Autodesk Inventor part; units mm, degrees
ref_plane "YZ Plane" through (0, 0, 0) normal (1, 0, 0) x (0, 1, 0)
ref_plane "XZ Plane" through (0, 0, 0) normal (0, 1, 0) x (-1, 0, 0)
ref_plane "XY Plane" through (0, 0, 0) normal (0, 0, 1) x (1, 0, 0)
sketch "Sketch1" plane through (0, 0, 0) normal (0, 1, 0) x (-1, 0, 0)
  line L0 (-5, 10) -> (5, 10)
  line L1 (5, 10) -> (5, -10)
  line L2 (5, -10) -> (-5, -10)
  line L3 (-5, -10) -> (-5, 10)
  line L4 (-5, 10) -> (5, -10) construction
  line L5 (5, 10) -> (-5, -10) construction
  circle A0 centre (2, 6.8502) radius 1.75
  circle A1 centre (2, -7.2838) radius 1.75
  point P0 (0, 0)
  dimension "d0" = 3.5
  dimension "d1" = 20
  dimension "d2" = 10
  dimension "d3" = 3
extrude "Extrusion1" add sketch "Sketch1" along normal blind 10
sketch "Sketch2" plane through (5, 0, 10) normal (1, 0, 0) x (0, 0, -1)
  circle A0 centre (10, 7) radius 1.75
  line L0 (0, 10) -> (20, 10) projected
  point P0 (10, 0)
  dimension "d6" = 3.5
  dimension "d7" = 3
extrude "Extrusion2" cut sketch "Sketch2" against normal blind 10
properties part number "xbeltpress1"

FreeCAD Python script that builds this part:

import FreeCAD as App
import Part
import Sketcher

doc = App.newDocument("Part")
params = doc.addObject("Spreadsheet::Sheet", "Params")
for row, (alias, value) in enumerate([
    ("sketch1_diameter", "3.5 mm"),
    ("sketch1_width", "10 mm"),
    ("sketch1_height", "20 mm"),
    ("pad1_length", "10 mm"),
    ("sketch2_diameter", "3.5 mm"),
    ("pocket1_length", "10 mm"),
], start=1):
    params.set(f"A{row}", alias)
    params.set(f"B{row}", "=" + value)
    params.setAlias(f"B{row}", alias)

body = doc.addObject("PartDesign::Body", "Body")

sketch1 = doc.addObject("Sketcher::SketchObject", "Sketch")
body.addObject(sketch1)
sketch1.AttachmentSupport = (doc.XZ_Plane, [""])
sketch1.MapMode = "FlatFace"
sketch1.addGeometry(Part.LineSegment(App.Vector(-5, 10, 0), App.Vector(5, 10, 0)), False)
sketch1.addGeometry(Part.LineSegment(App.Vector(5, 10, 0), App.Vector(5, -10, 0)), False)
sketch1.addGeometry(Part.LineSegment(App.Vector(5, -10, 0), App.Vector(-5, -10, 0)), False)
sketch1.addGeometry(Part.LineSegment(App.Vector(-5, -10, 0), App.Vector(-5, 10, 0)), False)
sketch1.addGeometry(Part.Circle(App.Vector(-2, -7.3, 0), App.Vector(0, 0, 1), 1.8), False)
sketch1.addGeometry(Part.Circle(App.Vector(-2, 6.9, 0), App.Vector(0, 0, 1), 1.8), False)
sketch1.addConstraint(Sketcher.Constraint("Coincident", 0, 2, 1, 1))
sketch1.addConstraint(Sketcher.Constraint("Coincident", 1, 2, 2, 1))
sketch1.addConstraint(Sketcher.Constraint("Coincident", 2, 2, 3, 1))
sketch1.addConstraint(Sketcher.Constraint("Coincident", 3, 2, 0, 1))
sketch1.addConstraint(Sketcher.Constraint("Horizontal", 0))
sketch1.addConstraint(Sketcher.Constraint("Vertical", 1))
sketch1.addConstraint(Sketcher.Constraint("Horizontal", 2))
sketch1.addConstraint(Sketcher.Constraint("Vertical", 3))
sketch1.addConstraint(Sketcher.Constraint("Equal", 4, 5))
sketch1.addConstraint(Sketcher.Constraint("Symmetric", 0, 2, 2, 2, -1, 1))
sketch1.addConstraint(Sketcher.Constraint("Vertical", 4, 3, 5, 3))
sketch1.addConstraint(Sketcher.Constraint("Diameter", 4, 3.5))
sketch1.addConstraint(Sketcher.Constraint("DistanceX", 0, 1, 0, 2, 10.0))
sketch1.addConstraint(Sketcher.Constraint("DistanceY", 1, 2, 1, 1, 20.0))
sketch1.addConstraint(Sketcher.Constraint("DistanceX", 2, 2, 4, 3, 3.0))
sketch1.addConstraint(Sketcher.Constraint("DistanceY", 4, 3, 5, 3, 14.134))
sketch1.addConstraint(Sketcher.Constraint("DistanceY", 4, 3, -1, 1, 7.2838))
sketch1.setExpression("Constraints[11]", "Params.sketch1_diameter")
sketch1.setExpression("Constraints[12]", "Params.sketch1_width")
sketch1.setExpression("Constraints[13]", "Params.sketch1_height")
pad1 = doc.addObject("PartDesign::Pad", "Pad")
body.addObject(pad1)
pad1.Profile = sketch1
pad1.setExpression("Length", "Params.pad1_length")
pad1.Reversed = True

sketch2 = doc.addObject("Sketcher::SketchObject", "Sketch001")
body.addObject(sketch2)
sketch2.AttachmentSupport = (doc.YZ_Plane, [""])
sketch2.MapMode = "FlatFace"
sketch2.AttachmentOffset = App.Placement(App.Vector(0, 0, 5), App.Rotation())
sketch2.addGeometry(Part.Circle(App.Vector(7, 0, 0), App.Vector(0, 0, 1), 1.8), False)
sketch2.addConstraint(Sketcher.Constraint("PointOnObject", 0, 3, -1))
sketch2.addConstraint(Sketcher.Constraint("Diameter", 0, 3.5))
sketch2.addConstraint(Sketcher.Constraint("DistanceX", -1, 1, 0, 3, 7.0))
sketch2.setExpression("Constraints[1]", "Params.sketch2_diameter")
pocket1 = doc.addObject("PartDesign::Pocket", "Pocket")
body.addObject(pocket1)
pocket1.Profile = sketch2
pocket1.setExpression("Length", "Params.pocket1_length")

doc.recompute()
